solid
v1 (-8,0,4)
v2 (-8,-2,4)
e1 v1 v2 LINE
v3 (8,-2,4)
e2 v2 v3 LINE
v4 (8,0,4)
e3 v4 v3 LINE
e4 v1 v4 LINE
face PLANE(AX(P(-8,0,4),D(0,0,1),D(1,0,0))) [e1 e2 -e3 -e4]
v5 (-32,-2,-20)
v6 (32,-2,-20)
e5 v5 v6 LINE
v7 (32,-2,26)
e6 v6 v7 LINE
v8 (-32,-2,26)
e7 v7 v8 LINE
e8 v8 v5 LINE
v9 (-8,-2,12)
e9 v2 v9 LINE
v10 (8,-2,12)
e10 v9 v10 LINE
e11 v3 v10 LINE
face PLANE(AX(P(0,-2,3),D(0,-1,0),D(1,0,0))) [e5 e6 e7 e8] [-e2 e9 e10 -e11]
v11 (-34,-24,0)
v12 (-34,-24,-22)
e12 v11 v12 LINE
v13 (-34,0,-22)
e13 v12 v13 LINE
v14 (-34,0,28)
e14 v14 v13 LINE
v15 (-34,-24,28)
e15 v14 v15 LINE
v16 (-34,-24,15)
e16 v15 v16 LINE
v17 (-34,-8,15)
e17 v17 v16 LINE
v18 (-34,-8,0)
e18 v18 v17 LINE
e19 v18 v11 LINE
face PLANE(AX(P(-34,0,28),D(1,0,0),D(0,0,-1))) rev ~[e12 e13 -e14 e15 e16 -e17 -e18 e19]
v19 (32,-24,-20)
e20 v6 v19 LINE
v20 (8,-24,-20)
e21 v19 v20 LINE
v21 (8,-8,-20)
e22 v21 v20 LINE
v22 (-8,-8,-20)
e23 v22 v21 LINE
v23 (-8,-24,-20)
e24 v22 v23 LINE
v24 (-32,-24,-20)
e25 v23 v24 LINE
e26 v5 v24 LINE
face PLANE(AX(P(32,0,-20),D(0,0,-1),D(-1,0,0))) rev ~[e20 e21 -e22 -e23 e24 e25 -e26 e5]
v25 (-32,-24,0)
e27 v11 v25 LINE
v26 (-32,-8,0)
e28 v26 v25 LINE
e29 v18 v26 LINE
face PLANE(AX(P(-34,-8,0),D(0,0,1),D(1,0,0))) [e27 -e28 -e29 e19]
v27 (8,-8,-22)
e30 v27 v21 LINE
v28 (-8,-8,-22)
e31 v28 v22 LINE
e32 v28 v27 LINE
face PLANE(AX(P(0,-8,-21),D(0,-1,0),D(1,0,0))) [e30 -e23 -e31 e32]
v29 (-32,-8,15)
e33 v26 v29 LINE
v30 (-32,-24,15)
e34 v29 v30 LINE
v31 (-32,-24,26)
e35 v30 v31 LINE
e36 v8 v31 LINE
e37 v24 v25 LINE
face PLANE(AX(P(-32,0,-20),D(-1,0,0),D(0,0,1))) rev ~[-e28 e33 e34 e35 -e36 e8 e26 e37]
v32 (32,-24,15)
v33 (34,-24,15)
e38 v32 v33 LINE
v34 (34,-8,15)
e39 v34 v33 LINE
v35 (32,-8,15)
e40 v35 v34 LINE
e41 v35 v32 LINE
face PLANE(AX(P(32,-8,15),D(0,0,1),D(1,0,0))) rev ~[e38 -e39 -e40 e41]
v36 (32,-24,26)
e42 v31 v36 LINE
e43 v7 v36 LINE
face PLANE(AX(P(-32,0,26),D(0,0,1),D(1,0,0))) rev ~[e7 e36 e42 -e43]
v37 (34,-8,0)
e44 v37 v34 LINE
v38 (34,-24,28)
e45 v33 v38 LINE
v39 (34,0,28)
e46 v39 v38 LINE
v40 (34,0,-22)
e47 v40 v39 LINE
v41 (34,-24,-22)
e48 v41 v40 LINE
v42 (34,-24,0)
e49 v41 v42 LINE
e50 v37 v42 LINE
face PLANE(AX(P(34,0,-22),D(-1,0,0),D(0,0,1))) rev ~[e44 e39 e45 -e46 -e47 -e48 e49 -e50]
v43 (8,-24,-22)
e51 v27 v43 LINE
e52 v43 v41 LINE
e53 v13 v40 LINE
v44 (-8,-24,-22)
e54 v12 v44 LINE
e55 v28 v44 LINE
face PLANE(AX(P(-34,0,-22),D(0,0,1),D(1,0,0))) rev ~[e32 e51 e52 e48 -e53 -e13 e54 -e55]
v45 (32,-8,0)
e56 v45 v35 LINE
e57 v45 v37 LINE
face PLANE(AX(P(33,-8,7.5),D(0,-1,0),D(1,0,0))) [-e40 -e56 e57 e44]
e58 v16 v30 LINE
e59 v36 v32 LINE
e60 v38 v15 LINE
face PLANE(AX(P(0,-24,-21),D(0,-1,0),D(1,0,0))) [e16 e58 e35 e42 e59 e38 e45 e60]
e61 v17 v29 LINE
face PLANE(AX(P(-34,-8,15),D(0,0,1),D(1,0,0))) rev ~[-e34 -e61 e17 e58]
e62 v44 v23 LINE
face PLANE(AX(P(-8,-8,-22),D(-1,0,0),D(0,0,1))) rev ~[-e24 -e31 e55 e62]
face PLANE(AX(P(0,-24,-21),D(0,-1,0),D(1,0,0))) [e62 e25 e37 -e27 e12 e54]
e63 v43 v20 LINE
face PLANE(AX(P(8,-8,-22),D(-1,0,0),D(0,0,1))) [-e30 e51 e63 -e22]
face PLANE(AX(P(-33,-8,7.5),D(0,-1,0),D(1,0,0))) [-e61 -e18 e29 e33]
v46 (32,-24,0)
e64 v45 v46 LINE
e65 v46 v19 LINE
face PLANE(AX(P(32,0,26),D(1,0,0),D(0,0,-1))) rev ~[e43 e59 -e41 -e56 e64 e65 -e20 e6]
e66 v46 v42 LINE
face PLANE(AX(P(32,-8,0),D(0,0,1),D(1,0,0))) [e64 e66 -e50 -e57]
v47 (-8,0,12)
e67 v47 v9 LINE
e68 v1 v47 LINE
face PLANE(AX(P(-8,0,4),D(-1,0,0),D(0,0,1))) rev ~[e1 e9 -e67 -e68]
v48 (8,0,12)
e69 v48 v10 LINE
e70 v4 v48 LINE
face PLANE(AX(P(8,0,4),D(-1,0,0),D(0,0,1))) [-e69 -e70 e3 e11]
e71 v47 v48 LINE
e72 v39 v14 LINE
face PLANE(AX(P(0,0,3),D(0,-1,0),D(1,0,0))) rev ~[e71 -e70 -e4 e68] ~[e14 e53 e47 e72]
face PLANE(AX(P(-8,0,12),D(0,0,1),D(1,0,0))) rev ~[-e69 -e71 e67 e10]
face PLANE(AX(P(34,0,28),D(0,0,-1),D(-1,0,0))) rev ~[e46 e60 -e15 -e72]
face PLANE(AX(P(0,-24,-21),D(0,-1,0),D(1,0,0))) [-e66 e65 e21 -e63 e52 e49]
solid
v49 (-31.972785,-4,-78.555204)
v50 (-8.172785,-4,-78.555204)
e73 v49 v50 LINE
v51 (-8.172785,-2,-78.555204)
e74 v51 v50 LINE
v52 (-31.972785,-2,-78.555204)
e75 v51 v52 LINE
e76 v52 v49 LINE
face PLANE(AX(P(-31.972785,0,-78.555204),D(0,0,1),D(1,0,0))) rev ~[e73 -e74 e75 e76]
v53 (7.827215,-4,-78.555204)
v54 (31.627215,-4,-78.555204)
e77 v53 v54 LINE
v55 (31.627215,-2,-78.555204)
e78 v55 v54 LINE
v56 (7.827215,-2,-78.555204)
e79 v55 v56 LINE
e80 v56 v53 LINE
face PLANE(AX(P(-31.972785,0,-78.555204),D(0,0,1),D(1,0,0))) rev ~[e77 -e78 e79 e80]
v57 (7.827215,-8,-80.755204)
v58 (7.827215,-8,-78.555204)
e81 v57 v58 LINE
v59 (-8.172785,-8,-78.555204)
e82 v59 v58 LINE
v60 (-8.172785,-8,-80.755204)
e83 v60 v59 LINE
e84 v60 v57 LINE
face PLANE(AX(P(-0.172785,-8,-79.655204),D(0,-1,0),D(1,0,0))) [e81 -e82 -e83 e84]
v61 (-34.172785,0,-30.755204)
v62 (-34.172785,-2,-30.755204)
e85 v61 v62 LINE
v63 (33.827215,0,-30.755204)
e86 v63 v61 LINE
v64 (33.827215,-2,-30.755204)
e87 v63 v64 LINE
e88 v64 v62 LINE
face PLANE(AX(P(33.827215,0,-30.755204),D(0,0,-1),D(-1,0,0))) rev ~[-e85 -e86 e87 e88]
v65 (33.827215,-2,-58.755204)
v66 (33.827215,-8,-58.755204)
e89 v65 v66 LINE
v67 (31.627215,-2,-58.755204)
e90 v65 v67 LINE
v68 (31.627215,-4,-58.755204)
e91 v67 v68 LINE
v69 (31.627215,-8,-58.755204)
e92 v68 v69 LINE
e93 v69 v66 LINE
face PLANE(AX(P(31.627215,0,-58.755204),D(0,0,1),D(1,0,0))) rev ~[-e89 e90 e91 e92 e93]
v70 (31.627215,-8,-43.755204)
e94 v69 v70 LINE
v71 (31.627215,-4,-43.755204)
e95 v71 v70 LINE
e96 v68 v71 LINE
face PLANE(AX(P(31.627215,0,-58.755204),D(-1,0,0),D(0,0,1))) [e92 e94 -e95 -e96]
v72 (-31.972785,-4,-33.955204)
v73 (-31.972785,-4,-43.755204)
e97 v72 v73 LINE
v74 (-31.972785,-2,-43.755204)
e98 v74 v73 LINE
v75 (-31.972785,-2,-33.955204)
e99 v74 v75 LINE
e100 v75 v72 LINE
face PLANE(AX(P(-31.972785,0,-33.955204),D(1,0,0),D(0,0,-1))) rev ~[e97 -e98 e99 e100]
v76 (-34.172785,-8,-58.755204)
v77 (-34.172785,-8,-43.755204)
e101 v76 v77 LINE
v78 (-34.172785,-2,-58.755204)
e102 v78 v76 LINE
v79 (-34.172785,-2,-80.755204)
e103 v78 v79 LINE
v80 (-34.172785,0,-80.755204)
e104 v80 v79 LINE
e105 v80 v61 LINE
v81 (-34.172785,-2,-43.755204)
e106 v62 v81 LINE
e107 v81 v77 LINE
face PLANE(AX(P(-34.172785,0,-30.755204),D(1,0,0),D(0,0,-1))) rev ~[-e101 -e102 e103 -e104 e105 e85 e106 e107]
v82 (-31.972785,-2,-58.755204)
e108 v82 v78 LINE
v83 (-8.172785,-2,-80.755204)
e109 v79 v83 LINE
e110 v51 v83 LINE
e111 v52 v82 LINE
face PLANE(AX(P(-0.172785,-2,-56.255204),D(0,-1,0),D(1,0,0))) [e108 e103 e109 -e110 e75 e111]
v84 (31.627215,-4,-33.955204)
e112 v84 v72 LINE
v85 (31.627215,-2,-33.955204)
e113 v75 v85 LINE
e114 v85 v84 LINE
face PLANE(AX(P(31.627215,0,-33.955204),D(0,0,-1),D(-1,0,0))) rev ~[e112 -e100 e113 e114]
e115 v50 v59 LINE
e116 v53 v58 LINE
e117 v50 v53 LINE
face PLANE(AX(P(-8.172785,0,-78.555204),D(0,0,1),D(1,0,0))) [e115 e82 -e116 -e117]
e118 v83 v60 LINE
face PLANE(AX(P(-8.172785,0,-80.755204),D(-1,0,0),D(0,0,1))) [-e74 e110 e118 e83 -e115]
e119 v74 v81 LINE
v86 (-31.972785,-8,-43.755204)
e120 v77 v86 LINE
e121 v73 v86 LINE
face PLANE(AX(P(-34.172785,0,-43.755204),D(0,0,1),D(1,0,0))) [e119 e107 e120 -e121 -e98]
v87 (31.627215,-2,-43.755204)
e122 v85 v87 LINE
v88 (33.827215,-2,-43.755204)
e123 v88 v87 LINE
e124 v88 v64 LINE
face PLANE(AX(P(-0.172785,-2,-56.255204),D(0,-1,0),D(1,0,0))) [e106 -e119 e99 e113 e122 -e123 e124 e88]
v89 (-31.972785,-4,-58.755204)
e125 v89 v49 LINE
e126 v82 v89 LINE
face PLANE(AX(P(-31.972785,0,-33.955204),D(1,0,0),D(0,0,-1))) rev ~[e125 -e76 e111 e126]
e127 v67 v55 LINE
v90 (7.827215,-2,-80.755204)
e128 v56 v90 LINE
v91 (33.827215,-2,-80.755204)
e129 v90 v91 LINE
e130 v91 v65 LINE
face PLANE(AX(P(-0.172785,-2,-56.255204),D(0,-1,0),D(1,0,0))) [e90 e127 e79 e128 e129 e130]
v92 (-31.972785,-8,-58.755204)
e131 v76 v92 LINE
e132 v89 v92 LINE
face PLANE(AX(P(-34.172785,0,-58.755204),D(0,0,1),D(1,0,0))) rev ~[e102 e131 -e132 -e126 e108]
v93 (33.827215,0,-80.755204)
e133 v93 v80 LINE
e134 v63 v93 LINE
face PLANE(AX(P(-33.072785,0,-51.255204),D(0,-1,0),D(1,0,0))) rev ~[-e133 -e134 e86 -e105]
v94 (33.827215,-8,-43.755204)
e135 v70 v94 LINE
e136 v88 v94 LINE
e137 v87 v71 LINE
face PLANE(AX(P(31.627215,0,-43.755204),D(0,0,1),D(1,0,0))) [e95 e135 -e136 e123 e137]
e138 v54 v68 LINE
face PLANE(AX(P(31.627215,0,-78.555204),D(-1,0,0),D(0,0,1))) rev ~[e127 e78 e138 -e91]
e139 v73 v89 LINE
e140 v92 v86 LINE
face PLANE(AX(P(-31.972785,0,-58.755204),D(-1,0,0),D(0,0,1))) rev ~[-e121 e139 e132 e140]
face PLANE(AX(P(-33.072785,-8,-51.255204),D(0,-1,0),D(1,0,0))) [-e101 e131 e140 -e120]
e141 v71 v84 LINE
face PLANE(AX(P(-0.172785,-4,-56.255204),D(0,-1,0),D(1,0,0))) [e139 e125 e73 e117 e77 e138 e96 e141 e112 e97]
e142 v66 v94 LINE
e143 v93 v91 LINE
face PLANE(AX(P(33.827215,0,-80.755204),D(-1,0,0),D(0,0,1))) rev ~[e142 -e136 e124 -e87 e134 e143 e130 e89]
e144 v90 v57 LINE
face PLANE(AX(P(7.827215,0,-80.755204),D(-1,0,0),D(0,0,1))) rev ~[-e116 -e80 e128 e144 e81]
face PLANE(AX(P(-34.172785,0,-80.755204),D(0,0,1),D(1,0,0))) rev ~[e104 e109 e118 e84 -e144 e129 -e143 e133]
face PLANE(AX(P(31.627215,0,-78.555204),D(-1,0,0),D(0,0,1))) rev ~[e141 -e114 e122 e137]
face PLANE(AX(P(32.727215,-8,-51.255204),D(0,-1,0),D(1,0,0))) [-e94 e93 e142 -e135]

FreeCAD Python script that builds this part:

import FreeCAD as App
import Part
import Sketcher


def add_polygon(sketch, points):
    """Adds a closed chain of lines whose ends are joined by coincident constraints."""
    first, n = sketch.GeometryCount, len(points)
    for a, b in zip(points, points[1:] + points[:1]):
        sketch.addGeometry(Part.LineSegment(App.Vector(*a, 0), App.Vector(*b, 0)), False)
    for i in range(n):
        sketch.addConstraint(Sketcher.Constraint("Coincident", first + i, 2, first + (i + 1) % n, 1))

doc = App.newDocument("Part")
params = doc.addObject("Spreadsheet::Sheet", "Params")
for row, (alias, value) in enumerate([
    ("sketch1_width", "68 mm"),
    ("sketch1_width2", "16 mm"),
    ("sketch1_height", "50 mm"),
    ("sketch1_height2", "8 mm"),
    ("pad1_length", "2 mm"),
    ("sketch2_width", "68 mm"),
    ("sketch2_width2", "64 mm"),
    ("sketch2_height", "50 mm"),
    ("sketch2_height2", "46 mm"),
    ("pad2_length", "24 mm"),
    ("sketch3_width", "2 mm"),
    ("sketch3_width2", "16 mm"),
    ("sketch3_height", "15 mm"),
    ("pocket1_length", "16 mm"),
    ("sketch4_width", "68 mm"),
    ("sketch4_height", "50 mm"),
    ("pad3_length", "2 mm"),
    ("sketch5_width", "63.6 mm"),
    ("sketch5_height", "44.6 mm"),
    ("pad4_length", "4 mm"),
    ("sketch6_width", "16 mm"),
    ("sketch6_height", "15 mm"),
    ("sketch6_width2", "2.2 mm"),
    ("pad5_length", "8 mm"),
], start=1):
    params.set(f"A{row}", alias)
    params.set(f"B{row}", "=" + value)
    params.setAlias(f"B{row}", alias)

body = doc.addObject("PartDesign::Body", "Body")

sketch1 = doc.addObject("Sketcher::SketchObject", "Sketch")
body.addObject(sketch1)
sketch1.AttachmentSupport = (doc.XZ_Plane, [""])
sketch1.MapMode = "FlatFace"
add_polygon(sketch1, [(34, -22), (34, 28), (-34, 28), (-34, -22)])
add_polygon(sketch1, [(8, 4), (-8, 4), (-8, 12), (8, 12)])
sketch1.addConstraint(Sketcher.Constraint("Vertical", 0))
sketch1.addConstraint(Sketcher.Constraint("Horizontal", 1))
sketch1.addConstraint(Sketcher.Constraint("Vertical", 2))
sketch1.addConstraint(Sketcher.Constraint("Horizontal", 3))
sketch1.addConstraint(Sketcher.Constraint("Horizontal", 4))
sketch1.addConstraint(Sketcher.Constraint("Vertical", 5))
sketch1.addConstraint(Sketcher.Constraint("Horizontal", 6))
sketch1.addConstraint(Sketcher.Constraint("Vertical", 7))
sketch1.addConstraint(Sketcher.Constraint("DistanceX", 1, 2, 1, 1, 68.0))
sketch1.addConstraint(Sketcher.Constraint("DistanceX", 4, 2, 4, 1, 16.0))
sketch1.addConstraint(Sketcher.Constraint("DistanceY", 0, 1, 0, 2, 50.0))
sketch1.addConstraint(Sketcher.Constraint("DistanceY", 5, 1, 5, 2, 8.0))
sketch1.addConstraint(Sketcher.Constraint("DistanceX", -1, 1, 0, 2, 34.0))
sketch1.addConstraint(Sketcher.Constraint("DistanceY", -1, 1, 0, 2, 28.0))
sketch1.addConstraint(Sketcher.Constraint("DistanceX", 4, 2, -1, 1, 8.0))
sketch1.addConstraint(Sketcher.Constraint("DistanceY", -1, 1, 4, 2, 4.0))
sketch1.setExpression("Constraints[16]", "Params.sketch1_width")
sketch1.setExpression("Constraints[17]", "Params.sketch1_width2")
sketch1.setExpression("Constraints[18]", "Params.sketch1_height")
sketch1.setExpression("Constraints[19]", "Params.sketch1_height2")
pad1 = doc.addObject("PartDesign::Pad", "Pad")
body.addObject(pad1)
pad1.Profile = sketch1
pad1.setExpression("Length", "Params.pad1_length")

sketch2 = doc.addObject("Sketcher::SketchObject", "Sketch001")
body.addObject(sketch2)
sketch2.AttachmentSupport = (doc.XZ_Plane, [""])
sketch2.MapMode = "FlatFace"
add_polygon(sketch2, [(-34, -22), (34, -22), (34, 28), (-34, 28)])
add_polygon(sketch2, [(-32, -20), (-32, 26), (32, 26), (32, -20)])
sketch2.addConstraint(Sketcher.Constraint("Horizontal", 0))
sketch2.addConstraint(Sketcher.Constraint("Vertical", 1))
sketch2.addConstraint(Sketcher.Constraint("Horizontal", 2))
sketch2.addConstraint(Sketcher.Constraint("Vertical", 3))
sketch2.addConstraint(Sketcher.Constraint("Vertical", 4))
sketch2.addConstraint(Sketcher.Constraint("Horizontal", 5))
sketch2.addConstraint(Sketcher.Constraint("Vertical", 6))
sketch2.addConstraint(Sketcher.Constraint("Horizontal", 7))
sketch2.addConstraint(Sketcher.Constraint("DistanceX", 0, 1, 0, 2, 68.0))
sketch2.addConstraint(Sketcher.Constraint("DistanceX", 5, 1, 5, 2, 64.0))
sketch2.addConstraint(Sketcher.Constraint("DistanceY", 1, 1, 1, 2, 50.0))
sketch2.addConstraint(Sketcher.Constraint("DistanceY", 4, 1, 4, 2, 46.0))
sketch2.addConstraint(Sketcher.Constraint("DistanceX", -1, 1, 0, 2, 34.0))
sketch2.addConstraint(Sketcher.Constraint("DistanceY", 0, 2, -1, 1, 22.0))
sketch2.addConstraint(Sketcher.Constraint("DistanceX", 4, 2, -1, 1, 32.0))
sketch2.addConstraint(Sketcher.Constraint("DistanceY", -1, 1, 4, 2, 26.0))
sketch2.setExpression("Constraints[16]", "Params.sketch2_width")
sketch2.setExpression("Constraints[17]", "Params.sketch2_width2")
sketch2.setExpression("Constraints[18]", "Params.sketch2_height")
sketch2.setExpression("Constraints[19]", "Params.sketch2_height2")
pad2 = doc.addObject("PartDesign::Pad", "Pad001")
body.addObject(pad2)
pad2.Profile = sketch2
pad2.setExpression("Length", "Params.pad2_length")

sketch3 = doc.addObject("Sketcher::SketchObject", "Sketch002")
body.addObject(sketch3)
sketch3.AttachmentSupport = (doc.XZ_Plane, [""])
sketch3.MapMode = "FlatFace"
sketch3.AttachmentOffset = App.Placement(App.Vector(0, 0, 8), App.Rotation())
add_polygon(sketch3, [(-34, 15), (-34, 0), (-32, 0), (-32, 15)])
add_polygon(sketch3, [(-8, -20), (-8, -22), (8, -22), (8, -20)])
add_polygon(sketch3, [(32, 15), (32, 0), (34, 0), (34, 15)])
sketch3.addConstraint(Sketcher.Constraint("Vertical", 0))
sketch3.addConstraint(Sketcher.Constraint("Horizontal", 1))
sketch3.addConstraint(Sketcher.Constraint("Vertical", 2))
sketch3.addConstraint(Sketcher.Constraint("Horizontal", 3))
sketch3.addConstraint(Sketcher.Constraint("Vertical", 4))
sketch3.addConstraint(Sketcher.Constraint("Horizontal", 5))
sketch3.addConstraint(Sketcher.Constraint("Vertical", 6))
sketch3.addConstraint(Sketcher.Constraint("Horizontal", 7))
sketch3.addConstraint(Sketcher.Constraint("Vertical", 8))
sketch3.addConstraint(Sketcher.Constraint("Horizontal", 9))
sketch3.addConstraint(Sketcher.Constraint("Vertical", 10))
sketch3.addConstraint(Sketcher.Constraint("Horizontal", 11))
sketch3.addConstraint(Sketcher.Constraint("Symmetric", 1, 2, 8, 2, -1, 1))
sketch3.addConstraint(Sketcher.Constraint("Symmetric", 0, 2, 9, 2, -2))
sketch3.addConstraint(Sketcher.Constraint("Horizontal", 3, 2, 10, 2))
sketch3.addConstraint(Sketcher.Constraint("Equal", 11, 4))
sketch3.addConstraint(Sketcher.Constraint("DistanceX", 1, 1, 1, 2, 2.0))
sketch3.addConstraint(Sketcher.Constraint("DistanceX", 5, 1, 5, 2, 16.0))
sketch3.addConstraint(Sketcher.Constraint("DistanceY", 0, 2, 0, 1, 15.0))
sketch3.addConstraint(Sketcher.Constraint("DistanceX", 0, 2, -1, 1, 34.0))
sketch3.addConstraint(Sketcher.Constraint("DistanceX", 4, 2, -1, 1, 8.0))
sketch3.addConstraint(Sketcher.Constraint("DistanceY", 4, 2, -1, 1, 22.0))
sketch3.setExpression("Constraints[28]", "Params.sketch3_width")
sketch3.setExpression("Constraints[29]", "Params.sketch3_width2")
sketch3.setExpression("Constraints[30]", "Params.sketch3_height")
pocket1 = doc.addObject("PartDesign::Pocket", "Pocket")
body.addObject(pocket1)
pocket1.Profile = sketch3
pocket1.setExpression("Length", "Params.pocket1_length")
pocket1.Reversed = True
body2 = doc.addObject("PartDesign::Body", "Body001")

sketch4 = doc.addObject("Sketcher::SketchObject", "Sketch003")
body2.addObject(sketch4)
sketch4.AttachmentSupport = (doc.getObject("XZ_Plane001"), [""])
sketch4.MapMode = "FlatFace"
add_polygon(sketch4, [(34, -31), (-34, -31), (-34, -81), (34, -81)])
sketch4.addConstraint(Sketcher.Constraint("Horizontal", 0))
sketch4.addConstraint(Sketcher.Constraint("Vertical", 1))
sketch4.addConstraint(Sketcher.Constraint("Horizontal", 2))
sketch4.addConstraint(Sketcher.Constraint("Vertical", 3))
sketch4.addConstraint(Sketcher.Constraint("DistanceX", 0, 2, 0, 1, 68.0))
sketch4.addConstraint(Sketcher.Constraint("DistanceY", 1, 2, 1, 1, 50.0))
sketch4.addConstraint(Sketcher.Constraint("DistanceX", 0, 2, -1, 1, 34.172785))
sketch4.addConstraint(Sketcher.Constraint("DistanceY", 0, 2, -1, 1, 30.755204))
sketch4.setExpression("Constraints[8]", "Params.sketch4_width")
sketch4.setExpression("Constraints[9]", "Params.sketch4_height")
pad3 = doc.addObject("PartDesign::Pad", "Pad002")
body2.addObject(pad3)
pad3.Profile = sketch4
pad3.setExpression("Length", "Params.pad3_length")

sketch5 = doc.addObject("Sketcher::SketchObject", "Sketch004")
body2.addObject(sketch5)
sketch5.AttachmentSupport = (doc.getObject("XZ_Plane001"), [""])
sketch5.MapMode = "FlatFace"
add_polygon(sketch5, [(-32, -34), (-32, -79), (32, -79), (32, -34)])
sketch5.addConstraint(Sketcher.Constraint("Vertical", 0))
sketch5.addConstraint(Sketcher.Constraint("Horizontal", 1))
sketch5.addConstraint(Sketcher.Constraint("Vertical", 2))
sketch5.addConstraint(Sketcher.Constraint("Horizontal", 3))
sketch5.addConstraint(Sketcher.Constraint("DistanceX", 1, 1, 1, 2, 63.6))
sketch5.addConstraint(Sketcher.Constraint("DistanceY", 0, 2, 0, 1, 44.6))
sketch5.addConstraint(Sketcher.Constraint("DistanceX", 0, 2, -1, 1, 31.972785))
sketch5.addConstraint(Sketcher.Constraint("DistanceY", 0, 2, -1, 1, 78.555204))
sketch5.setExpression("Constraints[8]", "Params.sketch5_width")
sketch5.setExpression("Constraints[9]", "Params.sketch5_height")
pad4 = doc.addObject("PartDesign::Pad", "Pad003")
body2.addObject(pad4)
pad4.Profile = sketch5
pad4.setExpression("Length", "Params.pad4_length")

sketch6 = doc.addObject("Sketcher::SketchObject", "Sketch005")
body2.addObject(sketch6)
sketch6.AttachmentSupport = (doc.getObject("XZ_Plane001"), [""])
sketch6.MapMode = "FlatFace"
add_polygon(sketch6, [(-34.2, -43.8), (-34.2, -58.8), (-32, -58.8), (-32, -43.8)])
add_polygon(sketch6, [(-8.2, -78.6), (-8.2, -80.8), (7.8, -80.8), (7.8, -78.6)])
add_polygon(sketch6, [(31.6, -43.8), (31.6, -58.8), (33.8, -58.8), (33.8, -43.8)])
sketch6.addConstraint(Sketcher.Constraint("Vertical", 0))
sketch6.addConstraint(Sketcher.Constraint("Horizontal", 1))
sketch6.addConstraint(Sketcher.Constraint("Vertical", 2))
sketch6.addConstraint(Sketcher.Constraint("Horizontal", 3))
sketch6.addConstraint(Sketcher.Constraint("Vertical", 4))
sketch6.addConstraint(Sketcher.Constraint("Horizontal", 5))
sketch6.addConstraint(Sketcher.Constraint("Vertical", 6))
sketch6.addConstraint(Sketcher.Constraint("Horizontal", 7))
sketch6.addConstraint(Sketcher.Constraint("Vertical", 8))
sketch6.addConstraint(Sketcher.Constraint("Horizontal", 9))
sketch6.addConstraint(Sketcher.Constraint("Vertical", 10))
sketch6.addConstraint(Sketcher.Constraint("Horizontal", 11))
sketch6.addConstraint(Sketcher.Constraint("Horizontal", 1, 2, 8, 2))
sketch6.addConstraint(Sketcher.Constraint("Horizontal", 3, 2, 10, 2))
sketch6.addConstraint(Sketcher.Constraint("Equal", 3, 9))
sketch6.addConstraint(Sketcher.Constraint("Equal", 11, 4))
sketch6.addConstraint(Sketcher.Constraint("DistanceX", 5, 1, 5, 2, 16.0))
sketch6.addConstraint(Sketcher.Constraint("DistanceY", 0, 2, 0, 1, 15.0))
sketch6.addConstraint(Sketcher.Constraint("DistanceX", 1, 1, 1, 2, 2.2))
sketch6.addConstraint(Sketcher.Constraint("DistanceY", 4, 2, 1, 2, 22.0))
sketch6.addConstraint(Sketcher.Constraint("DistanceX", 0, 2, 4, 2, 26.0))
sketch6.addConstraint(Sketcher.Constraint("DistanceX", 6, 2, 9, 2, 26.0))
sketch6.addConstraint(Sketcher.Constraint("DistanceX", 0, 2, -1, 1, 34.172785))
sketch6.addConstraint(Sketcher.Constraint("DistanceY", 0, 2, -1, 1, 58.755204))
sketch6.setExpression("Constraints[28]", "Params.sketch6_width")
sketch6.setExpression("Constraints[29]", "Params.sketch6_height")
sketch6.setExpression("Constraints[30]", "Params.sketch6_width2")
pad5 = doc.addObject("PartDesign::Pad", "Pad004")
body2.addObject(pad5)
pad5.Profile = sketch6
pad5.setExpression("Length", "Params.pad5_length")

doc.recompute()
